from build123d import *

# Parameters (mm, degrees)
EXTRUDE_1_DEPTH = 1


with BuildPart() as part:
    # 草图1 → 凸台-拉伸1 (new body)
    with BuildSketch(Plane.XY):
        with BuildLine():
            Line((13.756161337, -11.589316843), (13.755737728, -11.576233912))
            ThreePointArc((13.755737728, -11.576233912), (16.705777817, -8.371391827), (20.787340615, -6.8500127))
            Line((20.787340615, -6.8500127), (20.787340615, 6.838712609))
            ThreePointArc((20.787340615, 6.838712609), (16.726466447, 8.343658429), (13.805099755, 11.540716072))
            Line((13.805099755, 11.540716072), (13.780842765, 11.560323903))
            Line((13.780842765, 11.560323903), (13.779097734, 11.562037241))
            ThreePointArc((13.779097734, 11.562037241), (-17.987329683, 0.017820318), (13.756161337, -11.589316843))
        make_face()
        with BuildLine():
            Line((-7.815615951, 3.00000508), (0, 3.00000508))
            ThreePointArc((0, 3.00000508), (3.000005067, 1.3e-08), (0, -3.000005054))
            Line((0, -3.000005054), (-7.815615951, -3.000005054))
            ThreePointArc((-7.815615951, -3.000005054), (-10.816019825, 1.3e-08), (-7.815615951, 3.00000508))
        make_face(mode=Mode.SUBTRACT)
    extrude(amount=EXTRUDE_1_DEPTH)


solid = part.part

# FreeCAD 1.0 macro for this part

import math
import FreeCAD as App
import Part
import Sketcher

V = App.Vector
Q = App.Units.Quantity

doc = App.newDocument("Part")
params = doc.addObject("Spreadsheet::Sheet", "Params")
for row, (alias, value) in enumerate([
    ("pad1_length", "1 mm"),
], start=1):
    params.set(f"A{row}", alias)
    params.set(f"B{row}", "=" + value)
    params.setAlias(f"B{row}", alias)

body = doc.addObject("PartDesign::Body", "Body")

# Sketch on XY plane
sketch1 = doc.addObject("Sketcher::SketchObject", "Sketch")
body.addObject(sketch1)
sketch1.AttachmentSupport = (doc.XY_Plane, [""])
sketch1.MapMode = "FlatFace"
sketch1.addGeometry(Part.LineSegment(V(13.756161, -11.589317, 0), V(13.755738, -11.576234, 0)), False)
sketch1.addGeometry(Part.ArcOfCircle(Part.Circle(V(21.923859, -16.134777, 0), V(0, 0, 1), 9.354065), math.radians(96.978678), math.radians(150.83457)), False)
sketch1.addGeometry(Part.LineSegment(V(20.787341, -6.850013, 0), V(20.787341, 6.838713, 0)), False)
sketch1.addGeometry(Part.ArcOfCircle(Part.Circle(V(21.861868, 15.969474, 0), V(0, 0, 1), 9.19377), math.radians(-151.202665), math.radians(-96.711819)), False)
sketch1.addGeometry(Part.LineSegment(V(13.8051, 11.540716, 0), V(13.780843, 11.560324, 0)), False)
sketch1.addGeometry(Part.LineSegment(V(13.780843, 11.560324, 0), V(13.779098, 11.562037, 0)), False)
sketch1.addGeometry(Part.ArcOfCircle(Part.Circle(V(-0.000002, 0, 0), V(0, 0, 1), 17.987337), math.radians(40), math.radians(319.886472)), False)
sketch1.addGeometry(Part.ArcOfCircle(Part.Circle(V(-7.816015, 0, 0), V(0, 0, 1), 3.000005), math.radians(89.992384), math.radians(270.007616)), False)
sketch1.addGeometry(Part.LineSegment(V(-7.815616, 3.000005, 0), V(0, 3.000005, 0)), False)
sketch1.addGeometry(Part.ArcOfCircle(Part.Circle(V(0, 0, 0), V(0, 0, 1), 3.000005), math.radians(-90), math.radians(90)), False)
sketch1.addGeometry(Part.LineSegment(V(0, -3.000005, 0), V(-7.815616, -3.000005, 0)), False)
sketch1.addConstraint(Sketcher.Constraint("Coincident", 0, 2, 1, 2))
sketch1.addConstraint(Sketcher.Constraint("Coincident", 1, 1, 2, 1))
sketch1.addConstraint(Sketcher.Constraint("Coincident", 2, 2, 3, 2))
sketch1.addConstraint(Sketcher.Constraint("Coincident", 3, 1, 4, 1))
sketch1.addConstraint(Sketcher.Constraint("Coincident", 4, 2, 5, 1))
sketch1.addConstraint(Sketcher.Constraint("Coincident", 5, 2, 6, 1))
sketch1.addConstraint(Sketcher.Constraint("Coincident", 6, 2, 0, 1))
sketch1.addConstraint(Sketcher.Constraint("Coincident", 7, 1, 8, 1))
sketch1.addConstraint(Sketcher.Constraint("Tangent", 8, 2, 9, 2))
sketch1.addConstraint(Sketcher.Constraint("Tangent", 9, 1, 10, 1))
sketch1.addConstraint(Sketcher.Constraint("Coincident", 10, 2, 7, 2))
sketch1.addConstraint(Sketcher.Constraint("Vertical", 2))
sketch1.addConstraint(Sketcher.Constraint("Horizontal", 8))
sketch1.addConstraint(Sketcher.Constraint("Horizontal", 10))
sketch1.addConstraint(Sketcher.Constraint("Coincident", 6, 3, -1, 1))
sketch1.addConstraint(Sketcher.Constraint("Coincident", 9, 3, -1, 1))
sketch1.addConstraint(Sketcher.Constraint("Vertical", 7, 1, 10, 2))
sketch1.addConstraint(Sketcher.Constraint("Radius", 3, Q("9.19377 mm")))
sketch1.addConstraint(Sketcher.Constraint("Radius", 1, Q("9.354065 mm")))
sketch1.addConstraint(Sketcher.Constraint("Radius", 6, Q("17.987337 mm")))
sketch1.addConstraint(Sketcher.Constraint("Radius", 7, Q("3.000005 mm")))
sketch1.addConstraint(Sketcher.Constraint("DistanceX", -1, 1, 3, 1, Q("13.8051 mm")))
sketch1.addConstraint(Sketcher.Constraint("DistanceX", 7, 3, 7, 1, Q("0.000399 mm")))
sketch1.addConstraint(Sketcher.Constraint("Distance", 0, Q("0.01309 mm")))
sketch1.addConstraint(Sketcher.Constraint("Distance", 4, Q("0.031191 mm")))
sketch1.addConstraint(Sketcher.Constraint("DistanceX", 8, 1, 8, 2, Q("7.815616 mm")))
sketch1.addConstraint(Sketcher.Constraint("DistanceY", 2, 1, 2, 2, Q("13.688725 mm")))
sketch1.addConstraint(Sketcher.Constraint("DistanceX", -1, 1, 1, 3, Q("21.923859 mm")))
sketch1.addConstraint(Sketcher.Constraint("DistanceX", -1, 1, 3, 3, Q("21.861868 mm")))
sketch1.addConstraint(Sketcher.Constraint("DistanceX", -1, 1, 1, 1, Q("20.787341 mm")))
sketch1.addConstraint(Sketcher.Constraint("DistanceX", -1, 1, 6, 2, Q("13.756161 mm")))
sketch1.addConstraint(Sketcher.Constraint("DistanceX", 0, 2, 1, 3, Q("8.168122 mm")))
sketch1.addConstraint(Sketcher.Constraint("DistanceY", 2, 2, 4, 2, Q("4.721611 mm")))
sketch1.addConstraint(Sketcher.Constraint("DistanceY", 3, 1, 5, 2, Q("0.021321 mm")))
pad1 = doc.addObject("PartDesign::Pad", "Pad")
body.addObject(pad1)
pad1.Profile = sketch1
pad1.setExpression("Length", "Params.pad1_length")

doc.recompute()
